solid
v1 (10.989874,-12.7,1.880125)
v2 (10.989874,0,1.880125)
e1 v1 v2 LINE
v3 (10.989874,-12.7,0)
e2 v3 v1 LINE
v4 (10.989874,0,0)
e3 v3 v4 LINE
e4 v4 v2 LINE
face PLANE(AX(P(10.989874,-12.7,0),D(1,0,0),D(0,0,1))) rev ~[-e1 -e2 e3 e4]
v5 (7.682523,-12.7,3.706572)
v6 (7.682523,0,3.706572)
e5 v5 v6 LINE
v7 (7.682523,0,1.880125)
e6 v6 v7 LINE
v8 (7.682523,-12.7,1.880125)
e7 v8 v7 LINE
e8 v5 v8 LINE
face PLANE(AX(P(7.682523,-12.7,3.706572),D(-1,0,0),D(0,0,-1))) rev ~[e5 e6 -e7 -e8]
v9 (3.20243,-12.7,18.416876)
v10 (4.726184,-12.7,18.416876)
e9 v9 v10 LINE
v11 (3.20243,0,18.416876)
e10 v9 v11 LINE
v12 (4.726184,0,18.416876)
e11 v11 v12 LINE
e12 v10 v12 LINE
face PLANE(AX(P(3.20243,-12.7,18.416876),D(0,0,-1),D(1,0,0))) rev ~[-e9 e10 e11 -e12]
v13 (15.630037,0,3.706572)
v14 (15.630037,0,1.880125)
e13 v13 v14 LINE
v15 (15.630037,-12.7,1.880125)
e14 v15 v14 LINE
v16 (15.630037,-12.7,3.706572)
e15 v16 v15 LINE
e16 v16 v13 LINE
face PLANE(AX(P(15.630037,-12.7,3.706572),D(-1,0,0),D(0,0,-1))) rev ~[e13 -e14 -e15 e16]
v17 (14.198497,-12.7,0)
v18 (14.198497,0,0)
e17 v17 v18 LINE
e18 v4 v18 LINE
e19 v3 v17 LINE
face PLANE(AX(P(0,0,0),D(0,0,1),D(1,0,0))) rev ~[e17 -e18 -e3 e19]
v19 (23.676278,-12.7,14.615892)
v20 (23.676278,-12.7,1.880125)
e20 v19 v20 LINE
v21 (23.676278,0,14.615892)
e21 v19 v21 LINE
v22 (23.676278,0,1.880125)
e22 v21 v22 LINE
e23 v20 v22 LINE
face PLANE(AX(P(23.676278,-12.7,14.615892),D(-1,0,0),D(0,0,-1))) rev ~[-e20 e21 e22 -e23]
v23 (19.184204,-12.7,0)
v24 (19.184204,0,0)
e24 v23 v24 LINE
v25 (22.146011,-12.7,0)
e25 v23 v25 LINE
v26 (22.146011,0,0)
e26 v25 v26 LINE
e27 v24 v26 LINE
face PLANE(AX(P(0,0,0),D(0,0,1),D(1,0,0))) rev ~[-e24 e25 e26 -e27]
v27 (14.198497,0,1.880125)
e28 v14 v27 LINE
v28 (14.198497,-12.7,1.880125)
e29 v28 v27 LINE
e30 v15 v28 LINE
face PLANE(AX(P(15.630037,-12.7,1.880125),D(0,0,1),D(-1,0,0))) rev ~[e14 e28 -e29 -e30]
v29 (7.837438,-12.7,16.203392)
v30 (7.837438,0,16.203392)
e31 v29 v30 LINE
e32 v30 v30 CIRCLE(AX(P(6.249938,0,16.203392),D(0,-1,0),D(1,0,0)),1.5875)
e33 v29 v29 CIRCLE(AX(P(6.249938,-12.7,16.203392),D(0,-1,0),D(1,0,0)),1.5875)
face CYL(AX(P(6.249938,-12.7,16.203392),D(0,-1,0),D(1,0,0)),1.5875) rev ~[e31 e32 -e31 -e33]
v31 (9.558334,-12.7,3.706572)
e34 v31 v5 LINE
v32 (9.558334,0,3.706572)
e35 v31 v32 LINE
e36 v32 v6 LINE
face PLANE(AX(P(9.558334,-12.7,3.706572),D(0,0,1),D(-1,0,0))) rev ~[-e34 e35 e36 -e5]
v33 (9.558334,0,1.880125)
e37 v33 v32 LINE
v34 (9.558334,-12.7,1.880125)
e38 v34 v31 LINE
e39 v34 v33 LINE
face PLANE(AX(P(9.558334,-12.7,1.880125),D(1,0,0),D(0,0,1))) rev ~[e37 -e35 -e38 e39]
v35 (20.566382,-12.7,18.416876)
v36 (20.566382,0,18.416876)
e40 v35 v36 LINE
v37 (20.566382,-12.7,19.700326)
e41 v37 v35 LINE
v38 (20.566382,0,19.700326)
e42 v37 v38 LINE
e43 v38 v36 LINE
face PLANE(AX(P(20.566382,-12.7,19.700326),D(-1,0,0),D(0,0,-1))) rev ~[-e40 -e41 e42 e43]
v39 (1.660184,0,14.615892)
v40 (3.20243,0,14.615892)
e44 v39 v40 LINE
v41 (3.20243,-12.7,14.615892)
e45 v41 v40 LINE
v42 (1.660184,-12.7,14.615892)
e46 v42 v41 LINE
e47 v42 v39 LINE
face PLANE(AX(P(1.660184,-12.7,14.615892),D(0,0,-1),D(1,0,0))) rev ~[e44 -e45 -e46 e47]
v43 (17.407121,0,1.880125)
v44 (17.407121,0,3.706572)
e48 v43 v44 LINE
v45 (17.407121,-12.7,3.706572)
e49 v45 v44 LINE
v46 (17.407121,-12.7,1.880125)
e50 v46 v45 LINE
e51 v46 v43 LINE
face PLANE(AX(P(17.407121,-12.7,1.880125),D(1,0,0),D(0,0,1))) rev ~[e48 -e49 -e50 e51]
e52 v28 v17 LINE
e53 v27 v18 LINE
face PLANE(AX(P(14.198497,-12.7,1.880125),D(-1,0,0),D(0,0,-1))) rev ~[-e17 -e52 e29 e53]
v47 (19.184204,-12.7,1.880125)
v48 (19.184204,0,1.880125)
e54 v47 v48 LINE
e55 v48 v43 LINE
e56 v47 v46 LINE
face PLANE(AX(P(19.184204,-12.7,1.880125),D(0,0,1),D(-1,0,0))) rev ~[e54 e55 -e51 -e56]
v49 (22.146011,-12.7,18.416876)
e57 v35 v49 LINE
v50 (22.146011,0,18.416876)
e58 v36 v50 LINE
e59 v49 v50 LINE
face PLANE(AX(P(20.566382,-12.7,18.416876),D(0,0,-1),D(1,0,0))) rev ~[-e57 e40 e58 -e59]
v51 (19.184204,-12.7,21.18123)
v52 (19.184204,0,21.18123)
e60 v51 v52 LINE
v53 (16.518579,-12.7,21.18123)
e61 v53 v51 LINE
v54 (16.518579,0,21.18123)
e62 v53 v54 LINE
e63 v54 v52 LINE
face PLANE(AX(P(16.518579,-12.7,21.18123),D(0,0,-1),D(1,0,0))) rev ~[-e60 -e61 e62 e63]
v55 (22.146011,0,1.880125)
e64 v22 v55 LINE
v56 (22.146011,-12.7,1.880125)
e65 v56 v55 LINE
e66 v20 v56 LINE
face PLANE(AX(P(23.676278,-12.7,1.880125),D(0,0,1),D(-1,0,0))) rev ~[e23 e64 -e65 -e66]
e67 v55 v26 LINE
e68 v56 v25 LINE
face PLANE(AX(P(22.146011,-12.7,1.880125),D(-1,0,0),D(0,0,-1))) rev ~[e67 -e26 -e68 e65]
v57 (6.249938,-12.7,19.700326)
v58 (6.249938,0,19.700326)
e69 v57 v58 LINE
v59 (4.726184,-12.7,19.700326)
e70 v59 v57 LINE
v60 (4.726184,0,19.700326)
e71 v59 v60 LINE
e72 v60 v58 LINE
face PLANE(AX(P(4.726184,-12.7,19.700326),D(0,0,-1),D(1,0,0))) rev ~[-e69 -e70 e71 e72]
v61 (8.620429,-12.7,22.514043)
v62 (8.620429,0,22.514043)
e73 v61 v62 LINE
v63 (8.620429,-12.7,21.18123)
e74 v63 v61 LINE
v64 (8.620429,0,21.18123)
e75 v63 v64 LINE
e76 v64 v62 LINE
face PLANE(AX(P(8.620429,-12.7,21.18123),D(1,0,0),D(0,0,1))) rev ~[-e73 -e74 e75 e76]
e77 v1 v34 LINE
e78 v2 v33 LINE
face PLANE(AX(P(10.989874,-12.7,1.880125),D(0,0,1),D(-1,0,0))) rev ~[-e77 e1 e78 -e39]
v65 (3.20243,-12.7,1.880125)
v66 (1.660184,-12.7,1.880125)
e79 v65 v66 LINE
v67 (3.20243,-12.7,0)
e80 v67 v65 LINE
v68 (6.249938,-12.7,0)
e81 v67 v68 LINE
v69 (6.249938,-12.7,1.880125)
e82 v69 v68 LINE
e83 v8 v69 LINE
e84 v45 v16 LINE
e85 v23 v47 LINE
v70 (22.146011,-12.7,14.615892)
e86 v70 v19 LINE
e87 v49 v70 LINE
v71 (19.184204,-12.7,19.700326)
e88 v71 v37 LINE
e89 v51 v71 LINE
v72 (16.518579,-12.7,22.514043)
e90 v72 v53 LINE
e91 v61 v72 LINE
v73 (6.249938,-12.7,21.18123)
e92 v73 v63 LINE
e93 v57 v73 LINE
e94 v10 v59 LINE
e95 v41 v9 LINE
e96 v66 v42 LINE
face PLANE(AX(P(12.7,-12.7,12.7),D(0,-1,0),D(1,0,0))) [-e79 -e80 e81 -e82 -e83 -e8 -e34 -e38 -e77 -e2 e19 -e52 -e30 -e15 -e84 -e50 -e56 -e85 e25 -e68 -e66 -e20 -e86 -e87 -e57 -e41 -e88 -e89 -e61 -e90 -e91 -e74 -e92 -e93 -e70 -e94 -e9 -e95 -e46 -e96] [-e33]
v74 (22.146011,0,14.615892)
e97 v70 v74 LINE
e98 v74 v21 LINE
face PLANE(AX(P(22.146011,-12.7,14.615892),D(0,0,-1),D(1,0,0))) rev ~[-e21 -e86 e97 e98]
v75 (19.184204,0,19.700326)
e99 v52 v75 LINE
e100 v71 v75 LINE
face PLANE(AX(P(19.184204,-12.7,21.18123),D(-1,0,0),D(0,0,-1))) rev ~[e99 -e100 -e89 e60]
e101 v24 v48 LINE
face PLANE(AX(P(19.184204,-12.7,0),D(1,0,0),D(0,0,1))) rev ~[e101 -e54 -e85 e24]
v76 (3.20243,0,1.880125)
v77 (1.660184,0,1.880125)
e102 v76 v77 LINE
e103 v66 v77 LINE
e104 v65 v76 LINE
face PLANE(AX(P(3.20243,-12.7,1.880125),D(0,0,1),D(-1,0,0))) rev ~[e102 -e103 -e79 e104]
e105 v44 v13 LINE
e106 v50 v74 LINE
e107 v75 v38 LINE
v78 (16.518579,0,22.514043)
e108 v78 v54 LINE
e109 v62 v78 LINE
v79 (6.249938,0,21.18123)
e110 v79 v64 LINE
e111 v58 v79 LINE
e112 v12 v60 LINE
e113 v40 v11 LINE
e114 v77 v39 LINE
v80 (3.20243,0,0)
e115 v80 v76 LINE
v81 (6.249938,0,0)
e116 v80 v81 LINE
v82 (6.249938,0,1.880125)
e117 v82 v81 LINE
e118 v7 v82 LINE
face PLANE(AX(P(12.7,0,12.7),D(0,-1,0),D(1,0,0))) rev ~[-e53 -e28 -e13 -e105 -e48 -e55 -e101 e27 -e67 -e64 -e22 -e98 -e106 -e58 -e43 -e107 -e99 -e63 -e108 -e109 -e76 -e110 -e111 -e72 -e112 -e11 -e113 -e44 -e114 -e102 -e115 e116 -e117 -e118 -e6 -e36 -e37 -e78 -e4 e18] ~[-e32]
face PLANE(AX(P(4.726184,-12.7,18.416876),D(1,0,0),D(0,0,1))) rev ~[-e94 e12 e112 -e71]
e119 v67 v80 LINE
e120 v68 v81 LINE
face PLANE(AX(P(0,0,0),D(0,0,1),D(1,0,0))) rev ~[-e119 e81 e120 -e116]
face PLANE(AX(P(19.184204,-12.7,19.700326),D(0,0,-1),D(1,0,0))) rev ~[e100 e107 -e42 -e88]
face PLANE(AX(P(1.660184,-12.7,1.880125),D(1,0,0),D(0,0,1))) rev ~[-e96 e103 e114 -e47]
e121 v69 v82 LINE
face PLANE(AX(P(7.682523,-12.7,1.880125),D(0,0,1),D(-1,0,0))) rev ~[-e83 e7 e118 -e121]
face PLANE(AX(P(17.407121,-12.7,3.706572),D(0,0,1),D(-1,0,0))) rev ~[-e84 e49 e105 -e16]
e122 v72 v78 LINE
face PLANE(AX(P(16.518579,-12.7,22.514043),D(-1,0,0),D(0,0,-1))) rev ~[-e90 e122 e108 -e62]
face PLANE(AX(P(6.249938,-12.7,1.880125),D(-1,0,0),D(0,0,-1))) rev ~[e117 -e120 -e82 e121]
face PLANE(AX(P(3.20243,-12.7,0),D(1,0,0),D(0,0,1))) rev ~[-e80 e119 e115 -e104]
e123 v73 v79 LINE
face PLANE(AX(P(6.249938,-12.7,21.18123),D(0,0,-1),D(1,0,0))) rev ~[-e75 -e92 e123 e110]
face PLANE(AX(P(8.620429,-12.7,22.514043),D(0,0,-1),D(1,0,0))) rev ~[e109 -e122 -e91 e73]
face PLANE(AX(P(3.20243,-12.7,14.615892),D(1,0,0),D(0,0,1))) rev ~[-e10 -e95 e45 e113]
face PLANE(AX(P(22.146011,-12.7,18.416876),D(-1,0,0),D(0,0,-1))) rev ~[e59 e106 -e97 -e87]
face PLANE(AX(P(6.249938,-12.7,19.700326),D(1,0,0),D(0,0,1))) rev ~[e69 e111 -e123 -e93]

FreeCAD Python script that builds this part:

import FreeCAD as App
import Part
import Sketcher
Q = App.Units.Quantity


def add_polygon(sketch, points):
    """Adds a closed chain of lines whose ends are joined by coincident constraints."""
    first, n = sketch.GeometryCount, len(points)
    for a, b in zip(points, points[1:] + points[:1]):
        sketch.addGeometry(Part.LineSegment(App.Vector(*a, 0), App.Vector(*b, 0)), False)
    for i in range(n):
        sketch.addConstraint(Sketcher.Constraint("Coincident", first + i, 2, first + (i + 1) % n, 1))

doc = App.newDocument("Part")
body = doc.addObject("PartDesign::Body", "Body")

# Sketch on XZ plane
sketch1 = body.newObject("Sketcher::SketchObject", "Sketch")
sketch1.AttachmentSupport = (doc.getObject("XZ_Plane"), [""])
sketch1.MapMode = "FlatFace"
add_polygon(sketch1, [(0, 25), (0, 0), (25, 0), (25, 25)])  # lines 0-3
sketch1.addConstraint([
    Sketcher.Constraint("Vertical", 0),
    Sketcher.Constraint("Horizontal", 1),
    Sketcher.Constraint("Vertical", 2),
    Sketcher.Constraint("Horizontal", 3),
    Sketcher.Constraint("Coincident", 0, 2, -1, 1),
    Sketcher.Constraint("Equal", 3, 0),
    Sketcher.Constraint("DistanceX", 1, 1, 1, 2, Q("1 in")),
])
pad1 = body.newObject("PartDesign::Pad", "Pad")
pad1.Profile = sketch1
pad1.Length = Q("0.5 in")

# Sketch on XZ plane
sketch2 = body.newObject("Sketcher::SketchObject", "Sketch001")
sketch2.AttachmentSupport = (doc.getObject("XZ_Plane"), [""])
sketch2.MapMode = "FlatFace"
sketch2.AttachmentOffset = App.Placement(App.Vector(0, 0, 0.5 * 25.4), App.Rotation())
add_polygon(sketch2, [(0, 0), (3.2, 0), (3.2, 1.9), (1.7, 1.9), (1.7, 14.6), (3.2, 14.6), (3.2, 18.4), (4.7, 18.4), (4.7, 19.7), (6.2, 19.7), (6.2, 21.2), (8.6, 21.2), (8.6, 22.5), (16.5, 22.5), (16.5, 21.2), (19.2, 21.2), (19.2, 19.7), (20.6, 19.7), (20.6, 18.4), (22.1, 18.4), (22.1, 14.6), (23.7, 14.6), (23.7, 1.9), (22.1, 1.9), (22.1, 0), (25.4, 0), (25.4, 25.4), (0, 25.4)])  # lines 0-27
add_polygon(sketch2, [(14.2, 1.9), (14.2, 0), (19.2, 0), (19.2, 1.9), (17.4, 1.9), (17.4, 3.7), (15.6, 3.7), (15.6, 1.9)])  # lines 28-35
add_polygon(sketch2, [(6.2, 1.9), (6.2, 0), (11, 0), (11, 1.9), (9.6, 1.9), (9.6, 3.7), (7.7, 3.7), (7.7, 1.9)])  # lines 36-43
sketch2.addConstraint([
    Sketcher.Constraint("Horizontal", 0),
    Sketcher.Constraint("Vertical", 1),
    Sketcher.Constraint("Horizontal", 2),
    Sketcher.Constraint("Vertical", 3),
    Sketcher.Constraint("Horizontal", 4),
    Sketcher.Constraint("Vertical", 5),
    Sketcher.Constraint("Horizontal", 6),
    Sketcher.Constraint("Vertical", 7),
    Sketcher.Constraint("Horizontal", 8),
    Sketcher.Constraint("Vertical", 9),
    Sketcher.Constraint("Horizontal", 10),
    Sketcher.Constraint("Vertical", 11),
    Sketcher.Constraint("Horizontal", 12),
    Sketcher.Constraint("Vertical", 13),
    Sketcher.Constraint("Horizontal", 14),
    Sketcher.Constraint("Vertical", 15),
    Sketcher.Constraint("Horizontal", 16),
    Sketcher.Constraint("Vertical", 17),
    Sketcher.Constraint("Horizontal", 18),
    Sketcher.Constraint("Vertical", 19),
    Sketcher.Constraint("Horizontal", 20),
    Sketcher.Constraint("Vertical", 21),
    Sketcher.Constraint("Horizontal", 22),
    Sketcher.Constraint("Vertical", 23),
    Sketcher.Constraint("Horizontal", 24),
    Sketcher.Constraint("Vertical", 25),
    Sketcher.Constraint("Horizontal", 26),
    Sketcher.Constraint("Vertical", 27),
    Sketcher.Constraint("Vertical", 28),
    Sketcher.Constraint("Horizontal", 29),
    Sketcher.Constraint("Vertical", 30),
    Sketcher.Constraint("Horizontal", 31),
    Sketcher.Constraint("Vertical", 32),
    Sketcher.Constraint("Horizontal", 33),
    Sketcher.Constraint("Vertical", 34),
    Sketcher.Constraint("Horizontal", 35),
    Sketcher.Constraint("Vertical", 36),
    Sketcher.Constraint("Horizontal", 37),
    Sketcher.Constraint("Vertical", 38),
    Sketcher.Constraint("Horizontal", 39),
    Sketcher.Constraint("Vertical", 40),
    Sketcher.Constraint("Horizontal", 41),
    Sketcher.Constraint("Vertical", 42),
    Sketcher.Constraint("Horizontal", 43),
    Sketcher.Constraint("Coincident", 27, 2, -1, 1),
    Sketcher.Constraint("PointOnObject", 23, 2, -1),
    Sketcher.Constraint("PointOnObject", 28, 2, -1),
    Sketcher.Constraint("PointOnObject", 36, 2, -1),
    Sketcher.Constraint("Horizontal", 10, 2, 13, 2),
    Sketcher.Constraint("Horizontal", 8, 2, 15, 2),
    Sketcher.Constraint("Horizontal", 6, 2, 17, 2),
    Sketcher.Constraint("Horizontal", 4, 2, 19, 2),
    Sketcher.Constraint("Horizontal", 2, 2, 21, 2),
    Sketcher.Constraint("Horizontal", 22, 2, 30, 2),
    Sketcher.Constraint("Horizontal", 31, 2, 34, 2),
    Sketcher.Constraint("Horizontal", 35, 2, 38, 2),
    Sketcher.Constraint("Horizontal", 33, 2, 40, 2),
    Sketcher.Constraint("Horizontal", 39, 2, 42, 2),
    Sketcher.Constraint("Vertical", 1, 2, 4, 2),
    Sketcher.Constraint("Vertical", 19, 2, 22, 2),
    Sketcher.Constraint("Vertical", 15, 2, 29, 2),
    Sketcher.Constraint("Vertical", 9, 2, 36, 2),
    Sketcher.Constraint("Equal", 6, 8),
    Sketcher.Constraint("Equal", 31, 33),
    Sketcher.Constraint("Equal", 35, 39),
    Sketcher.Constraint("Equal", 26, 25),
    Sketcher.Constraint("DistanceX", 26, 2, 26, 1, Q("1 in")),
    Sketcher.Constraint("DistanceX", -1, 1, 16, 2, Q("0.8097001 in")),
    Sketcher.Constraint("DistanceX", 0, 1, 0, 2, Q("3.20243 mm")),
    Sketcher.Constraint("DistanceX", 10, 1, 10, 2, Q("2.370491 mm")),
    Sketcher.Constraint("DistanceX", 12, 1, 12, 2, Q("7.89815 mm")),
    Sketcher.Constraint("DistanceX", 18, 1, 18, 2, Q("1.579629 mm")),
    Sketcher.Constraint("DistanceX", 35, 2, 35, 1, Q("1.43154 mm")),
    Sketcher.Constraint("DistanceX", 41, 2, 41, 1, Q("1.875811 mm")),
    Sketcher.Constraint("DistanceY", 7, 1, 7, 2, Q("1.28345 mm")),
    Sketcher.Constraint("DistanceX", 3, 2, 6, 2, Q("3.066 mm")),
    Sketcher.Constraint("DistanceY", 1, 2, 7, 2, Q("17.820201 mm")),
    Sketcher.Constraint("DistanceX", 5, 2, 10, 2, Q("5.417999 mm")),
    Sketcher.Constraint("DistanceX", 14, 1, 14, 2, Q("2.665625 mm")),
    Sketcher.Constraint("DistanceX", 20, 1, 20, 2, Q("1.530267 mm")),
    Sketcher.Constraint("DistanceX", 29, 1, 29, 2, Q("4.985707 mm")),
    Sketcher.Constraint("DistanceX", 37, 1, 37, 2, Q("4.739936 mm")),
    Sketcher.Constraint("DistanceY", 1, 1, 1, 2, Q("1.880125 mm")),
    Sketcher.Constraint("DistanceY", 3, 1, 3, 2, Q("12.735767 mm")),
    Sketcher.Constraint("DistanceY", 9, 1, 9, 2, Q("1.480904 mm")),
    Sketcher.Constraint("DistanceY", 11, 1, 11, 2, Q("1.332813 mm")),
    Sketcher.Constraint("DistanceY", 32, 1, 32, 2, Q("1.826447 mm")),
])
pocket1 = body.newObject("PartDesign::Pocket", "Pocket")
pocket1.Profile = sketch2
pocket1.Length = Q("0.5 in")

# Sketch on XZ plane
sketch3 = body.newObject("Sketcher::SketchObject", "Sketch002")
sketch3.AttachmentSupport = (doc.getObject("XZ_Plane"), [""])
sketch3.MapMode = "FlatFace"
sketch3.AttachmentOffset = App.Placement(App.Vector(0, 0, 0.5 * 25.4), App.Rotation())
sketch3.addGeometry(Part.Circle(App.Vector(6.2, 16.2, 0), App.Vector(0, 0, 1), 1.6), False)
sketch3.addConstraint([
    Sketcher.Constraint("Diameter", 0, Q("0.125 in")),
    Sketcher.Constraint("DistanceX", -1, 1, 0, 3, Q("6.249938 mm")),
    Sketcher.Constraint("DistanceY", -1, 1, 0, 3, Q("16.203392 mm")),
])
pocket2 = body.newObject("PartDesign::Pocket", "Pocket001")
pocket2.Profile = sketch3
pocket2.Length = Q("0.5 in")

doc.recompute()
